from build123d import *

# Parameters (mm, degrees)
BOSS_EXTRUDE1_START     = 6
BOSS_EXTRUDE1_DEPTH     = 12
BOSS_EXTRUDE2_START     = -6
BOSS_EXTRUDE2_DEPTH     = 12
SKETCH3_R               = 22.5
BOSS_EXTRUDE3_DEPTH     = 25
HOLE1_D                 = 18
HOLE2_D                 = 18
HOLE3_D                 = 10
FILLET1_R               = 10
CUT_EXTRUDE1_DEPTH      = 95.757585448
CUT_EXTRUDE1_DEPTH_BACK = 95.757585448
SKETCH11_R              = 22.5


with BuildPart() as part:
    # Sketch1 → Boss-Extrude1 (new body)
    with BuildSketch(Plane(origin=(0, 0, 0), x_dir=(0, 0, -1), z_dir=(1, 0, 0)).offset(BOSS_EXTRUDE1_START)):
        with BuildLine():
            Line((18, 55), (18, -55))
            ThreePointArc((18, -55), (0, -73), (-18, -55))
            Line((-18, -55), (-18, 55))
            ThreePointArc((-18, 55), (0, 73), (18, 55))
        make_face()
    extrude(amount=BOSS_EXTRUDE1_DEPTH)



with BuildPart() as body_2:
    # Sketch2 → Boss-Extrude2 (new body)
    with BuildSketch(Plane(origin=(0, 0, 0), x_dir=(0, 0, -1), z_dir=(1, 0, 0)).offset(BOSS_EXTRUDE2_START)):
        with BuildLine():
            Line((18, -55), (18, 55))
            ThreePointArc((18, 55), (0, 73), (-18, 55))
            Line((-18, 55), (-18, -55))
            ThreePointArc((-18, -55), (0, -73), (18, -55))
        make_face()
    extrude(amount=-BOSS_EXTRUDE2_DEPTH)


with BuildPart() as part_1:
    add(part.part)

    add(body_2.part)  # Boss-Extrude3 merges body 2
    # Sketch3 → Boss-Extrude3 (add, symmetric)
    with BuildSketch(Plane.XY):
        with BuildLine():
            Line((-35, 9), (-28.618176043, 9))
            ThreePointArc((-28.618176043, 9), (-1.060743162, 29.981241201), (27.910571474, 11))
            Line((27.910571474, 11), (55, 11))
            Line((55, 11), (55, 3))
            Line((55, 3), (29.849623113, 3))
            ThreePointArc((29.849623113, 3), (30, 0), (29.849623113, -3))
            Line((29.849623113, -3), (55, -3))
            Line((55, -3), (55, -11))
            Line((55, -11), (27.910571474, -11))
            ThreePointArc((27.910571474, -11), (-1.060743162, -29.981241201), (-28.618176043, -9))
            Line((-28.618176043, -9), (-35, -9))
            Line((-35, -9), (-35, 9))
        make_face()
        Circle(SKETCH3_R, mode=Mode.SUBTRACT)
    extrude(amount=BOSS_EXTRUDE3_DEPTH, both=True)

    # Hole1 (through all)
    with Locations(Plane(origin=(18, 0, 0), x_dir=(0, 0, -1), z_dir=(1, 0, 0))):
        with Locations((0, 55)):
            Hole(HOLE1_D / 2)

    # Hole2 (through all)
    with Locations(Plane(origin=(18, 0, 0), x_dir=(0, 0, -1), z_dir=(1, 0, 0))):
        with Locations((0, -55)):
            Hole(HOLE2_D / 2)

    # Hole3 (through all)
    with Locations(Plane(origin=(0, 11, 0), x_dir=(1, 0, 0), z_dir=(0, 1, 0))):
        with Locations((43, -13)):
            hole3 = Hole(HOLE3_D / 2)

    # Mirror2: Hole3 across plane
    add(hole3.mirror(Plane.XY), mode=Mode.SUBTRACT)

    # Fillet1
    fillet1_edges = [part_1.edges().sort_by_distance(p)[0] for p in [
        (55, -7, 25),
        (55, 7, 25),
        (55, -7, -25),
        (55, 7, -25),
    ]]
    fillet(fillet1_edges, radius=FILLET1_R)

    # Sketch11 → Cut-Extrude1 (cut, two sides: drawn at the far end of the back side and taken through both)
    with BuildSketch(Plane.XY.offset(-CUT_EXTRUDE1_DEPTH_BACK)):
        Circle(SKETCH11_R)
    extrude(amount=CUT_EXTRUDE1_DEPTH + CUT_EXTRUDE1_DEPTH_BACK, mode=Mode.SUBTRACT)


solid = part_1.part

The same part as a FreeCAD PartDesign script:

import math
import FreeCAD as App
import Part
import Sketcher

V = App.Vector
Q = App.Units.Quantity


def edges_at(feature, points):
    """Names of the edges that pass closest to the given points."""
    edges = feature.Shape.Edges
    near = lambda p: min(range(len(edges)), key=lambda i: edges[i].distToShape(Part.Vertex(*p))[0])
    return sorted({f"Edge{near(p) + 1}" for p in points})

doc = App.newDocument("Part")
params = doc.addObject("Spreadsheet::Sheet", "Params")
for row, (alias, value) in enumerate([
    ("sketch1_radius", "18 mm"),
    ("sketch1_width", "110 mm"),
    ("pad1_length", "12 mm"),
    ("sketch2_radius", "18 mm"),
    ("sketch2_width", "110 mm"),
    ("pad2_length", "12 mm"),
    ("sketch3_diameter", "45 mm"),
    ("sketch3_radius", "30 mm"),
    ("sketch3_height", "18 mm"),
    ("sketch3_height2", "8 mm"),
    ("pad3_length", "50 mm"),
    ("sketch4_diameter", "18 mm"),
    ("hole_diameter", "18 mm"),
    ("sketch5_diameter", "18 mm"),
    ("hole2_diameter", "18 mm"),
    ("sketch6_diameter", "10 mm"),
    ("hole3_diameter", "10 mm"),
    ("fillet_radius", "10 mm"),
    ("sketch7_diameter", "45 mm"),
], start=1):
    params.set(f"A{row}", alias)
    params.set(f"B{row}", "=" + value)
    params.setAlias(f"B{row}", alias)

body = doc.addObject("PartDesign::Body", "Body")

# Sketch on YZ plane
sketch1 = doc.addObject("Sketcher::SketchObject", "Sketch")
body.addObject(sketch1)
sketch1.AttachmentSupport = (doc.YZ_Plane, [""])
sketch1.MapMode = "FlatFace"
sketch1.AttachmentOffset = App.Placement(V(0, 0, 6), App.Rotation())
sketch1.addGeometry([
    Part.LineSegment(V(-55, -18, 0), V(55, -18, 0)),
    Part.ArcOfCircle(Part.Circle(V(55, 0, 0), V(0, 0, 1), 18), math.radians(-90), math.radians(90)),
    Part.LineSegment(V(55, 18, 0), V(-55, 18, 0)),
    Part.ArcOfCircle(Part.Circle(V(-55, 0, 0), V(0, 0, 1), 18), math.radians(90), math.radians(270)),
], False)
sketch1.addConstraint([
    Sketcher.Constraint("Tangent", 0, 2, 1, 1),
    Sketcher.Constraint("Tangent", 1, 2, 2, 1),
    Sketcher.Constraint("Tangent", 2, 2, 3, 1),
    Sketcher.Constraint("Tangent", 3, 2, 0, 1),
    Sketcher.Constraint("Horizontal", 0),
    Sketcher.Constraint("Horizontal", 2),
    Sketcher.Constraint("Symmetric", 1, 3, 3, 3, -1, 1),
    Sketcher.Constraint("Radius", 1, Q("18 mm")),
    Sketcher.Constraint("DistanceX", 0, 1, 0, 2, Q("110 mm")),
])
sketch1.setExpression("Constraints[7]", "Params.sketch1_radius")
sketch1.setExpression("Constraints[8]", "Params.sketch1_width")
pad1 = doc.addObject("PartDesign::Pad", "Pad")
body.addObject(pad1)
pad1.Profile = sketch1
pad1.setExpression("Length", "Params.pad1_length")
body2 = doc.addObject("PartDesign::Body", "Body001")

# Sketch on YZ plane
sketch2 = doc.addObject("Sketcher::SketchObject", "Sketch001")
body2.addObject(sketch2)
sketch2.AttachmentSupport = (doc.getObject("YZ_Plane001"), [""])
sketch2.MapMode = "FlatFace"
sketch2.AttachmentOffset = App.Placement(V(0, 0, -6), App.Rotation())
sketch2.addGeometry([
    Part.LineSegment(V(-55, -18, 0), V(55, -18, 0)),
    Part.ArcOfCircle(Part.Circle(V(55, 0, 0), V(0, 0, 1), 18), math.radians(-90), math.radians(90)),
    Part.LineSegment(V(55, 18, 0), V(-55, 18, 0)),
    Part.ArcOfCircle(Part.Circle(V(-55, 0, 0), V(0, 0, 1), 18), math.radians(90), math.radians(270)),
], False)
sketch2.addConstraint([
    Sketcher.Constraint("Tangent", 0, 2, 1, 1),
    Sketcher.Constraint("Tangent", 1, 2, 2, 1),
    Sketcher.Constraint("Tangent", 2, 2, 3, 1),
    Sketcher.Constraint("Tangent", 3, 2, 0, 1),
    Sketcher.Constraint("Horizontal", 0),
    Sketcher.Constraint("Horizontal", 2),
    Sketcher.Constraint("Symmetric", 1, 3, 3, 3, -1, 1),
    Sketcher.Constraint("Radius", 1, Q("18 mm")),
    Sketcher.Constraint("DistanceX", 0, 1, 0, 2, Q("110 mm")),
])
sketch2.setExpression("Constraints[7]", "Params.sketch2_radius")
sketch2.setExpression("Constraints[8]", "Params.sketch2_width")
pad2 = doc.addObject("PartDesign::Pad", "Pad001")
body2.addObject(pad2)
pad2.Profile = sketch2
pad2.setExpression("Length", "Params.pad2_length")
pad2.Reversed = True
body.AllowCompound = True
doc.recompute()

boolean = doc.addObject("PartDesign::Boolean", "Boolean")
body.addObject(boolean)
boolean.Type = "Fuse"
boolean.addObjects([body2])

# Sketch on XY plane
sketch3 = doc.addObject("Sketcher::SketchObject", "Sketch002")
body.addObject(sketch3)
sketch3.AttachmentSupport = (doc.XY_Plane, [""])
sketch3.MapMode = "FlatFace"
sketch3.addGeometry([
    Part.LineSegment(V(-28.618176, 9, 0), V(-35, 9, 0)),  # 0
    Part.LineSegment(V(-35, 9, 0), V(-35, -9, 0)),  # 1
    Part.LineSegment(V(-35, -9, 0), V(-28.618176, -9, 0)),  # 2
    Part.ArcOfCircle(Part.Circle(V(0, 0, 0), V(0, 0, 1), 30), math.radians(-162.542397), math.radians(-21.510188)),  # 3
    Part.LineSegment(V(27.910571, -11, 0), V(55, -11, 0)),  # 4
    Part.LineSegment(V(55, -11, 0), V(55, -3, 0)),  # 5
    Part.LineSegment(V(55, -3, 0), V(29.849623, -3, 0)),  # 6
    Part.ArcOfCircle(Part.Circle(V(0, 0, 0), V(0, 0, 1), 30), math.radians(-5.73917), math.radians(5.73917)),  # 7
    Part.LineSegment(V(29.849623, 3, 0), V(55, 3, 0)),  # 8
    Part.LineSegment(V(55, 3, 0), V(55, 11, 0)),  # 9
    Part.LineSegment(V(55, 11, 0), V(27.910571, 11, 0)),  # 10
    Part.ArcOfCircle(Part.Circle(V(0, 0, 0), V(0, 0, 1), 30), math.radians(21.510188), math.radians(162.542397)),  # 11
    Part.Circle(V(0, 0, 0), V(0, 0, 1), 22.5),  # 12
], False)
sketch3.addConstraint([
    Sketcher.Constraint("Coincident", 0, 2, 1, 1),
    Sketcher.Constraint("Coincident", 1, 2, 2, 1),
    Sketcher.Constraint("Coincident", 2, 2, 3, 1),
    Sketcher.Constraint("Coincident", 3, 2, 4, 1),
    Sketcher.Constraint("Coincident", 4, 2, 5, 1),
    Sketcher.Constraint("Coincident", 5, 2, 6, 1),
    Sketcher.Constraint("Coincident", 6, 2, 7, 1),
    Sketcher.Constraint("Coincident", 7, 2, 8, 1),
    Sketcher.Constraint("Coincident", 8, 2, 9, 1),
    Sketcher.Constraint("Coincident", 9, 2, 10, 1),
    Sketcher.Constraint("Coincident", 10, 2, 11, 1),
    Sketcher.Constraint("Coincident", 11, 2, 0, 1),
    Sketcher.Constraint("Horizontal", 0),
    Sketcher.Constraint("Vertical", 1),
    Sketcher.Constraint("Horizontal", 2),
    Sketcher.Constraint("Horizontal", 4),
    Sketcher.Constraint("Vertical", 5),
    Sketcher.Constraint("Horizontal", 6),
    Sketcher.Constraint("Horizontal", 8),
    Sketcher.Constraint("Vertical", 9),
    Sketcher.Constraint("Horizontal", 10),
    Sketcher.Constraint("Coincident", 3, 3, -1, 1),
    Sketcher.Constraint("Coincident", 7, 3, -1, 1),
    Sketcher.Constraint("Coincident", 11, 3, -1, 1),
    Sketcher.Constraint("Coincident", 12, 3, -1, 1),
    Sketcher.Constraint("Equal", 3, 7),
    Sketcher.Constraint("Equal", 7, 11),
    Sketcher.Constraint("Symmetric", 5, 2, 8, 2, -1),
    Sketcher.Constraint("Vertical", 3, 2, 10, 2),
    Sketcher.Constraint("Vertical", 2, 2, 11, 2),
    Sketcher.Constraint("Diameter", 12, Q("45 mm")),
    Sketcher.Constraint("Radius", 3, Q("30 mm")),
    Sketcher.Constraint("DistanceY", 1, 2, 1, 1, Q("18 mm")),
    Sketcher.Constraint("DistanceY", 5, 1, 5, 2, Q("8 mm")),
    Sketcher.Constraint("DistanceX", 0, 2, -1, 1, Q("35 mm")),
    Sketcher.Constraint("DistanceY", 3, 2, -1, 1, Q("11 mm")),
    Sketcher.Constraint("DistanceX", -1, 1, 4, 2, Q("55 mm")),
])
sketch3.setExpression("Constraints[30]", "Params.sketch3_diameter")
sketch3.setExpression("Constraints[31]", "Params.sketch3_radius")
sketch3.setExpression("Constraints[32]", "Params.sketch3_height")
sketch3.setExpression("Constraints[33]", "Params.sketch3_height2")
pad3 = doc.addObject("PartDesign::Pad", "Pad002")
body.addObject(pad3)
pad3.Profile = sketch3
pad3.setExpression("Length", "Params.pad3_length")
pad3.Midplane = True

# Sketch on YZ plane
sketch4 = doc.addObject("Sketcher::SketchObject", "Sketch003")
body.addObject(sketch4)
sketch4.AttachmentSupport = (doc.YZ_Plane, [""])
sketch4.MapMode = "FlatFace"
sketch4.AttachmentOffset = App.Placement(V(0, 0, 18), App.Rotation())
sketch4.addGeometry(Part.Circle(V(55, 0, 0), V(0, 0, 1), 9), False)
sketch4.addConstraint([
    Sketcher.Constraint("PointOnObject", 0, 3, -1),
    Sketcher.Constraint("Diameter", 0, Q("18 mm")),
    Sketcher.Constraint("DistanceX", -1, 1, 0, 3, Q("55 mm")),
])
sketch4.setExpression("Constraints[1]", "Params.sketch4_diameter")
doc.recompute()
hole = doc.addObject("PartDesign::Hole", "Hole")
body.addObject(hole)
hole.Profile = sketch4
hole.ThreadType = "None"
hole.setExpression("Diameter", "Params.hole_diameter")
hole.DepthType = "ThroughAll"

# Sketch on YZ plane
sketch5 = doc.addObject("Sketcher::SketchObject", "Sketch004")
body.addObject(sketch5)
sketch5.AttachmentSupport = (doc.YZ_Plane, [""])
sketch5.MapMode = "FlatFace"
sketch5.AttachmentOffset = App.Placement(V(0, 0, 18), App.Rotation())
sketch5.addGeometry(Part.Circle(V(-55, 0, 0), V(0, 0, 1), 9), False)
sketch5.addConstraint([
    Sketcher.Constraint("PointOnObject", 0, 3, -1),
    Sketcher.Constraint("Diameter", 0, Q("18 mm")),
    Sketcher.Constraint("DistanceX", 0, 3, -1, 1, Q("55 mm")),
])
sketch5.setExpression("Constraints[1]", "Params.sketch5_diameter")
doc.recompute()
hole2 = doc.addObject("PartDesign::Hole", "Hole001")
body.addObject(hole2)
hole2.Profile = sketch5
hole2.ThreadType = "None"
hole2.setExpression("Diameter", "Params.hole2_diameter")
hole2.DepthType = "ThroughAll"

# Sketch on XZ plane
sketch6 = doc.addObject("Sketcher::SketchObject", "Sketch005")
body.addObject(sketch6)
sketch6.AttachmentSupport = (doc.XZ_Plane, [""])
sketch6.MapMode = "FlatFace"
sketch6.AttachmentOffset = App.Placement(V(0, 0, -11), App.Rotation())
sketch6.addGeometry(Part.Circle(V(43, 13, 0), V(0, 0, 1), 5), False)
sketch6.addConstraint([
    Sketcher.Constraint("Diameter", 0, Q("10 mm")),
    Sketcher.Constraint("DistanceX", -1, 1, 0, 3, Q("43 mm")),
    Sketcher.Constraint("DistanceY", -1, 1, 0, 3, Q("13 mm")),
])
sketch6.setExpression("Constraints[0]", "Params.sketch6_diameter")
doc.recompute()
hole3 = doc.addObject("PartDesign::Hole", "Hole002")
body.addObject(hole3)
hole3.Profile = sketch6
hole3.ThreadType = "None"
hole3.setExpression("Diameter", "Params.hole3_diameter")
hole3.DepthType = "ThroughAll"
hole3.Reversed = True
doc.recompute()

mirrored = doc.addObject("PartDesign::Mirrored", "Mirrored")
body.addObject(mirrored)
mirrored.Originals = [hole3]
mirrored.MirrorPlane = (doc.XY_Plane, [""])
body.Tip = mirrored
doc.recompute()

fillet = doc.addObject("PartDesign::Fillet", "Fillet")
body.addObject(fillet)
fillet.Base = (mirrored, edges_at(mirrored, [
    (55, -7, 25),
    (55, 7, 25),
    (55, -7, -25),
    (55, 7, -25),
]))
fillet.setExpression("Radius", "Params.fillet_radius")

# Sketch on XY plane
sketch7 = doc.addObject("Sketcher::SketchObject", "Sketch006")
body.addObject(sketch7)
sketch7.AttachmentSupport = (doc.XY_Plane, [""])
sketch7.MapMode = "FlatFace"
sketch7.addGeometry(Part.Circle(V(0, 0, 0), V(0, 0, 1), 22.5), False)
sketch7.addConstraint([
    Sketcher.Constraint("Coincident", 0, 3, -1, 1),
    Sketcher.Constraint("Diameter", 0, Q("45 mm")),
])
sketch7.setExpression("Constraints[1]", "Params.sketch7_diameter")
pocket1 = doc.addObject("PartDesign::Pocket", "Pocket")
body.addObject(pocket1)
pocket1.Profile = sketch7
pocket1.Type = "ThroughAll"
pocket1.Midplane = True

doc.recompute()
